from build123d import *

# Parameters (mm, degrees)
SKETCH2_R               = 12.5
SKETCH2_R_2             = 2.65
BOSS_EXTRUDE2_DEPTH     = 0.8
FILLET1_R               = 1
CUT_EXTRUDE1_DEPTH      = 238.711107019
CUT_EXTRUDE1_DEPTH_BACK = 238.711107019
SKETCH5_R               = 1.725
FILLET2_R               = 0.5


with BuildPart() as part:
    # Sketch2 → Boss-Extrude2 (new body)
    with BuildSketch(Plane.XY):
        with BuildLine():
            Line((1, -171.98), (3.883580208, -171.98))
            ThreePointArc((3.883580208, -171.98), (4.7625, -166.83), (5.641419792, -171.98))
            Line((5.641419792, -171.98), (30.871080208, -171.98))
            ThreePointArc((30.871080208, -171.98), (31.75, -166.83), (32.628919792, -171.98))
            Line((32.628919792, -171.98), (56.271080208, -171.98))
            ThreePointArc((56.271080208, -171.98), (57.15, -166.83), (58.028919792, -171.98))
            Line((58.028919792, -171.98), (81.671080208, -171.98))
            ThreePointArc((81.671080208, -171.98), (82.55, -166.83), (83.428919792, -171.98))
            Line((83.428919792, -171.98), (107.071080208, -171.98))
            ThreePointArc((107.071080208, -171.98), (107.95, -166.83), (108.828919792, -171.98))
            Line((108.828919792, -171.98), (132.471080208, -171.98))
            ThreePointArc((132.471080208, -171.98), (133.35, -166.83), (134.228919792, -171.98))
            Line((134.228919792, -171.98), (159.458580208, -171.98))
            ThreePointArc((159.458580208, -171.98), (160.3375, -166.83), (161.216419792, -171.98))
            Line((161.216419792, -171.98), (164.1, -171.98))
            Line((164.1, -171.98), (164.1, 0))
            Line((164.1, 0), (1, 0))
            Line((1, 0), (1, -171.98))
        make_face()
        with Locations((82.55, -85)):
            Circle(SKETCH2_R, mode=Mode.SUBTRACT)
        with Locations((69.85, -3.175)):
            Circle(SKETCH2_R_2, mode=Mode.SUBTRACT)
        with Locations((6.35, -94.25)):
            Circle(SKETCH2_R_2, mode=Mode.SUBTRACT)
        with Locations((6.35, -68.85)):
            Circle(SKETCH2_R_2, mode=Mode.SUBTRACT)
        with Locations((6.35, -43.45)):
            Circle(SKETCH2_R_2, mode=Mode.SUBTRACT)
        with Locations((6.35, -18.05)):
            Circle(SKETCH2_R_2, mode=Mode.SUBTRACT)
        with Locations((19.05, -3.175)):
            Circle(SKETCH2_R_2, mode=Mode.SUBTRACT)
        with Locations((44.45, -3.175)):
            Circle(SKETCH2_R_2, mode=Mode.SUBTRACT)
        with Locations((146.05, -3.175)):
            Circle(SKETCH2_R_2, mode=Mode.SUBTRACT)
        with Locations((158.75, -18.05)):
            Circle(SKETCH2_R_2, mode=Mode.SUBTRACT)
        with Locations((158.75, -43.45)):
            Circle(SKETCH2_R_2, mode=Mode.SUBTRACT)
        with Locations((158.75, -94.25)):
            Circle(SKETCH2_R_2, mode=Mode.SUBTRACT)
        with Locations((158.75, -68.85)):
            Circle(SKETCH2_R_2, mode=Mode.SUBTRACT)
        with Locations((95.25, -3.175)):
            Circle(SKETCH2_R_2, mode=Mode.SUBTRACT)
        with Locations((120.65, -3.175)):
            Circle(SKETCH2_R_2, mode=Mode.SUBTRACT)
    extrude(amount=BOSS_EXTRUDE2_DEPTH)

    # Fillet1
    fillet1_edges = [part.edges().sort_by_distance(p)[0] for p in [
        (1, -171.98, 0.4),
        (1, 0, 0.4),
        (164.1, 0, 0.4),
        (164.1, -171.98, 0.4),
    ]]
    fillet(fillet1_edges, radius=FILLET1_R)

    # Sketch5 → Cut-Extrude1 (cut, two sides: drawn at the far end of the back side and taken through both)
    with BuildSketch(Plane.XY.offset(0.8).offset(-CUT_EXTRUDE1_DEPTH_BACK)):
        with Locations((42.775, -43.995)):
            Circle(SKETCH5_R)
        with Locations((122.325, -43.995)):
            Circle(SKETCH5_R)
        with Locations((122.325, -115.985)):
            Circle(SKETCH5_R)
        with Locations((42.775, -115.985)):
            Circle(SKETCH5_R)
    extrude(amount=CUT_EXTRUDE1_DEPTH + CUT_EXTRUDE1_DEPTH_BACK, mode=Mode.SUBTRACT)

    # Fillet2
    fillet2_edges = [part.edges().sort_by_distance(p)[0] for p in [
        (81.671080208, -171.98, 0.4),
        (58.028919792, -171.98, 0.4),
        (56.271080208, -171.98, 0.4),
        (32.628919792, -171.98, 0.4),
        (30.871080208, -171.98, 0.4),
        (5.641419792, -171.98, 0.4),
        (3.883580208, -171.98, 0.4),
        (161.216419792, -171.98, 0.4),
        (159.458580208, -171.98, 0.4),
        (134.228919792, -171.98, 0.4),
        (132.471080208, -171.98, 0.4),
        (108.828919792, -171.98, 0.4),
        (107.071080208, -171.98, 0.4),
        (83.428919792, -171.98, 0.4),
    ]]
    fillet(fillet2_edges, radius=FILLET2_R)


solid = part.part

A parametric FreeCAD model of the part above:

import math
import FreeCAD as App
import Part
import Sketcher
from FreeCAD import Vector


def edges_at(feature, points):
    """Names of the edges that pass closest to the given points."""
    edges = feature.Shape.Edges
    near = lambda p: min(range(len(edges)), key=lambda i: edges[i].distToShape(Part.Vertex(*p))[0])
    return sorted({f"Edge{near(p) + 1}" for p in points})

doc = App.newDocument("Part")
params = doc.addObject("Spreadsheet::Sheet", "Params")
for row, (alias, value) in enumerate([
    ("sketch1_diameter", "25 mm"),
    ("sketch1_diameter2", "5.3 mm"),
    ("sketch1_width", "163.1 mm"),
    ("sketch1_height", "171.98 mm"),
    ("pad1_length", "0.8 mm"),
    ("fillet_radius", "1 mm"),
    ("sketch2_diameter", "3.45 mm"),
    ("fillet2_radius", "0.5 mm"),
], start=1):
    params.set(f"A{row}", alias)
    params.set(f"B{row}", "=" + value)
    params.setAlias(f"B{row}", alias)

body = doc.addObject("PartDesign::Body", "Body")

# Sketch on XY plane
sketch1 = body.newObject("Sketcher::SketchObject", "Sketch")
sketch1.AttachmentSupport = (doc.getObject("XY_Plane"), [""])
sketch1.MapMode = "FlatFace"
sketch1.addGeometry(Part.LineSegment(Vector(1, -172, 0), Vector(3.9, -172, 0)), False)
sketch1.addGeometry(Part.ArcOfCircle(Part.Circle(Vector(4.8, -169.5, 0), Vector(0, 0, 1), 2.6), math.radians(-71), math.radians(251)), False)
sketch1.addGeometry(Part.LineSegment(Vector(5.6, -172, 0), Vector(30.9, -172, 0)), False)
sketch1.addGeometry(Part.ArcOfCircle(Part.Circle(Vector(31.8, -169.5, 0), Vector(0, 0, 1), 2.6), math.radians(-71), math.radians(251)), False)
sketch1.addGeometry(Part.LineSegment(Vector(32.6, -172, 0), Vector(56.3, -172, 0)), False)
sketch1.addGeometry(Part.ArcOfCircle(Part.Circle(Vector(57.1, -169.5, 0), Vector(0, 0, 1), 2.6), math.radians(-71), math.radians(251)), False)
sketch1.addGeometry(Part.LineSegment(Vector(58, -172, 0), Vector(81.7, -172, 0)), False)
sketch1.addGeometry(Part.ArcOfCircle(Part.Circle(Vector(82.5, -169.5, 0), Vector(0, 0, 1), 2.6), math.radians(-71), math.radians(251)), False)
sketch1.addGeometry(Part.LineSegment(Vector(83.4, -172, 0), Vector(107.1, -172, 0)), False)
sketch1.addGeometry(Part.ArcOfCircle(Part.Circle(Vector(108, -169.5, 0), Vector(0, 0, 1), 2.6), math.radians(-71), math.radians(251)), False)
sketch1.addGeometry(Part.LineSegment(Vector(108.8, -172, 0), Vector(132.5, -172, 0)), False)
sketch1.addGeometry(Part.ArcOfCircle(Part.Circle(Vector(133.3, -169.5, 0), Vector(0, 0, 1), 2.6), math.radians(-71), math.radians(251)), False)
sketch1.addGeometry(Part.LineSegment(Vector(134.2, -172, 0), Vector(159.5, -172, 0)), False)
sketch1.addGeometry(Part.ArcOfCircle(Part.Circle(Vector(160.3, -169.5, 0), Vector(0, 0, 1), 2.6), math.radians(-71), math.radians(251)), False)
sketch1.addGeometry(Part.LineSegment(Vector(161.2, -172, 0), Vector(164.1, -172, 0)), False)
sketch1.addGeometry(Part.LineSegment(Vector(164.1, -172, 0), Vector(164.1, 0, 0)), False)
sketch1.addGeometry(Part.LineSegment(Vector(164.1, 0, 0), Vector(1, 0, 0)), False)
sketch1.addGeometry(Part.LineSegment(Vector(1, 0, 0), Vector(1, -172, 0)), False)
sketch1.addGeometry(Part.Circle(Vector(6.3, -94.2, 0), Vector(0, 0, 1), 2.6), False)
sketch1.addGeometry(Part.Circle(Vector(6.3, -68.8, 0), Vector(0, 0, 1), 2.6), False)
sketch1.addGeometry(Part.Circle(Vector(82.5, -85, 0), Vector(0, 0, 1), 12.5), False)
sketch1.addGeometry(Part.Circle(Vector(158.8, -94.2, 0), Vector(0, 0, 1), 2.6), False)
sketch1.addGeometry(Part.Circle(Vector(158.8, -68.8, 0), Vector(0, 0, 1), 2.6), False)
sketch1.addGeometry(Part.Circle(Vector(6.3, -43.5, 0), Vector(0, 0, 1), 2.6), False)
sketch1.addGeometry(Part.Circle(Vector(6.3, -18.1, 0), Vector(0, 0, 1), 2.6), False)
sketch1.addGeometry(Part.Circle(Vector(19.1, -3.2, 0), Vector(0, 0, 1), 2.6), False)
sketch1.addGeometry(Part.Circle(Vector(44.5, -3.2, 0), Vector(0, 0, 1), 2.6), False)
sketch1.addGeometry(Part.Circle(Vector(69.8, -3.2, 0), Vector(0, 0, 1), 2.6), False)
sketch1.addGeometry(Part.Circle(Vector(158.8, -43.5, 0), Vector(0, 0, 1), 2.6), False)
sketch1.addGeometry(Part.Circle(Vector(95.2, -3.2, 0), Vector(0, 0, 1), 2.6), False)
sketch1.addGeometry(Part.Circle(Vector(120.7, -3.2, 0), Vector(0, 0, 1), 2.6), False)
sketch1.addGeometry(Part.Circle(Vector(158.8, -18.1, 0), Vector(0, 0, 1), 2.6), False)
sketch1.addGeometry(Part.Circle(Vector(146.1, -3.2, 0), Vector(0, 0, 1), 2.6), False)
sketch1.addConstraint(Sketcher.Constraint("Coincident", 0, 2, 1, 2))
sketch1.addConstraint(Sketcher.Constraint("Coincident", 1, 1, 2, 1))
sketch1.addConstraint(Sketcher.Constraint("Coincident", 2, 2, 3, 2))
sketch1.addConstraint(Sketcher.Constraint("Coincident", 3, 1, 4, 1))
sketch1.addConstraint(Sketcher.Constraint("Coincident", 4, 2, 5, 2))
sketch1.addConstraint(Sketcher.Constraint("Coincident", 5, 1, 6, 1))
sketch1.addConstraint(Sketcher.Constraint("Coincident", 6, 2, 7, 2))
sketch1.addConstraint(Sketcher.Constraint("Coincident", 7, 1, 8, 1))
sketch1.addConstraint(Sketcher.Constraint("Coincident", 8, 2, 9, 2))
sketch1.addConstraint(Sketcher.Constraint("Coincident", 9, 1, 10, 1))
sketch1.addConstraint(Sketcher.Constraint("Coincident", 10, 2, 11, 2))
sketch1.addConstraint(Sketcher.Constraint("Coincident", 11, 1, 12, 1))
sketch1.addConstraint(Sketcher.Constraint("Coincident", 12, 2, 13, 2))
sketch1.addConstraint(Sketcher.Constraint("Coincident", 13, 1, 14, 1))
sketch1.addConstraint(Sketcher.Constraint("Coincident", 14, 2, 15, 1))
sketch1.addConstraint(Sketcher.Constraint("Coincident", 15, 2, 16, 1))
sketch1.addConstraint(Sketcher.Constraint("Coincident", 16, 2, 17, 1))
sketch1.addConstraint(Sketcher.Constraint("Coincident", 17, 2, 0, 1))
sketch1.addConstraint(Sketcher.Constraint("Horizontal", 0))
sketch1.addConstraint(Sketcher.Constraint("Horizontal", 2))
sketch1.addConstraint(Sketcher.Constraint("Horizontal", 4))
sketch1.addConstraint(Sketcher.Constraint("Horizontal", 6))
sketch1.addConstraint(Sketcher.Constraint("Horizontal", 8))
sketch1.addConstraint(Sketcher.Constraint("Horizontal", 10))
sketch1.addConstraint(Sketcher.Constraint("Horizontal", 12))
sketch1.addConstraint(Sketcher.Constraint("Horizontal", 14))
sketch1.addConstraint(Sketcher.Constraint("Vertical", 15))
sketch1.addConstraint(Sketcher.Constraint("Horizontal", 16))
sketch1.addConstraint(Sketcher.Constraint("Vertical", 17))
sketch1.addConstraint(Sketcher.Constraint("Equal", 1, 3))
sketch1.addConstraint(Sketcher.Constraint("Equal", 3, 5))
sketch1.addConstraint(Sketcher.Constraint("Equal", 5, 7))
sketch1.addConstraint(Sketcher.Constraint("Equal", 7, 9))
sketch1.addConstraint(Sketcher.Constraint("Equal", 9, 11))
sketch1.addConstraint(Sketcher.Constraint("Equal", 11, 13))
sketch1.addConstraint(Sketcher.Constraint("Equal", 13, 18))
sketch1.addConstraint(Sketcher.Constraint("Equal", 18, 19))
sketch1.addConstraint(Sketcher.Constraint("Equal", 19, 21))
sketch1.addConstraint(Sketcher.Constraint("Equal", 21, 22))
sketch1.addConstraint(Sketcher.Constraint("Equal", 22, 23))
sketch1.addConstraint(Sketcher.Constraint("Equal", 23, 24))
sketch1.addConstraint(Sketcher.Constraint("Equal", 24, 25))
sketch1.addConstraint(Sketcher.Constraint("Equal", 25, 26))
sketch1.addConstraint(Sketcher.Constraint("Equal", 26, 27))
sketch1.addConstraint(Sketcher.Constraint("Equal", 27, 28))
sketch1.addConstraint(Sketcher.Constraint("Equal", 28, 29))
sketch1.addConstraint(Sketcher.Constraint("Equal", 29, 30))
sketch1.addConstraint(Sketcher.Constraint("Equal", 30, 31))
sketch1.addConstraint(Sketcher.Constraint("Equal", 31, 32))
sketch1.addConstraint(Sketcher.Constraint("PointOnObject", 15, 2, -1))
sketch1.addConstraint(Sketcher.Constraint("Horizontal", 1, 3, 3, 3))
sketch1.addConstraint(Sketcher.Constraint("Horizontal", 3, 3, 5, 3))
sketch1.addConstraint(Sketcher.Constraint("Horizontal", 5, 3, 7, 3))
sketch1.addConstraint(Sketcher.Constraint("Horizontal", 7, 3, 9, 3))
sketch1.addConstraint(Sketcher.Constraint("Horizontal", 9, 3, 11, 3))
sketch1.addConstraint(Sketcher.Constraint("Horizontal", 11, 3, 13, 3))
sketch1.addConstraint(Sketcher.Constraint("Horizontal", 18, 3, 21, 3))
sketch1.addConstraint(Sketcher.Constraint("Horizontal", 19, 3, 22, 3))
sketch1.addConstraint(Sketcher.Constraint("Horizontal", 25, 3, 26, 3))
sketch1.addConstraint(Sketcher.Constraint("Horizontal", 26, 3, 27, 3))
sketch1.addConstraint(Sketcher.Constraint("Horizontal", 23, 3, 28, 3))
sketch1.addConstraint(Sketcher.Constraint("Horizontal", 27, 3, 29, 3))
sketch1.addConstraint(Sketcher.Constraint("Horizontal", 29, 3, 30, 3))
sketch1.addConstraint(Sketcher.Constraint("Horizontal", 24, 3, 31, 3))
sketch1.addConstraint(Sketcher.Constraint("Horizontal", 30, 3, 32, 3))
sketch1.addConstraint(Sketcher.Constraint("Horizontal", 0, 2, 1, 1))
sketch1.addConstraint(Sketcher.Constraint("Horizontal", 2, 2, 3, 1))
sketch1.addConstraint(Sketcher.Constraint("Horizontal", 4, 2, 5, 1))
sketch1.addConstraint(Sketcher.Constraint("Horizontal", 6, 2, 7, 1))
sketch1.addConstraint(Sketcher.Constraint("Horizontal", 8, 2, 9, 1))
sketch1.addConstraint(Sketcher.Constraint("Horizontal", 10, 2, 11, 1))
sketch1.addConstraint(Sketcher.Constraint("Horizontal", 12, 2, 13, 1))
sketch1.addConstraint(Sketcher.Constraint("Vertical", 18, 3, 19, 3))
sketch1.addConstraint(Sketcher.Constraint("Vertical", 7, 3, 20, 3))
sketch1.addConstraint(Sketcher.Constraint("Vertical", 21, 3, 22, 3))
sketch1.addConstraint(Sketcher.Constraint("Vertical", 19, 3, 23, 3))
sketch1.addConstraint(Sketcher.Constraint("Vertical", 23, 3, 24, 3))
sketch1.addConstraint(Sketcher.Constraint("Vertical", 22, 3, 28, 3))
sketch1.addConstraint(Sketcher.Constraint("Vertical", 28, 3, 31, 3))
sketch1.addConstraint(Sketcher.Constraint("Equal", 4, 6))
sketch1.addConstraint(Sketcher.Constraint("Equal", 6, 8))
sketch1.addConstraint(Sketcher.Constraint("Equal", 8, 10))
sketch1.addConstraint(Sketcher.Constraint("Equal", 2, 12))
sketch1.addConstraint(Sketcher.Constraint("Equal", 0, 14))
sketch1.addConstraint(Sketcher.Constraint("Diameter", 20, 25.0))
sketch1.addConstraint(Sketcher.Constraint("Diameter", 18, 5.3))
sketch1.addConstraint(Sketcher.Constraint("DistanceX", 16, 2, 16, 1, 163.1))
sketch1.addConstraint(Sketcher.Constraint("DistanceY", 20, 3, -1, 1, 85.0))
sketch1.addConstraint(Sketcher.Constraint("DistanceX", -1, 1, 16, 2, 1.0))
sketch1.addConstraint(Sketcher.Constraint("DistanceY", 15, 1, 15, 2, 171.98))
sketch1.addConstraint(Sketcher.Constraint("DistanceX", 3, 3, 5, 3, 25.4))
sketch1.addConstraint(Sketcher.Constraint("DistanceX", 18, 3, 3, 3, 25.4))
sketch1.addConstraint(Sketcher.Constraint("DistanceY", 18, 3, 19, 3, 25.4))
sketch1.addConstraint(Sketcher.Constraint("DistanceX", 20, 3, 21, 3, 76.2))
sketch1.addConstraint(Sketcher.Constraint("DistanceY", 19, 3, 23, 3, 25.4))
sketch1.addConstraint(Sketcher.Constraint("DistanceY", 23, 3, 24, 3, 25.4))
sketch1.addConstraint(Sketcher.Constraint("DistanceX", 24, 3, 25, 3, 12.7))
sketch1.addConstraint(Sketcher.Constraint("DistanceX", 25, 3, 26, 3, 25.4))
sketch1.addConstraint(Sketcher.Constraint("DistanceX", 26, 3, 27, 3, 25.4))
sketch1.addConstraint(Sketcher.Constraint("DistanceX", 27, 3, 29, 3, 25.4))
sketch1.addConstraint(Sketcher.Constraint("DistanceX", 29, 3, 30, 3, 25.4))
sketch1.addConstraint(Sketcher.Constraint("DistanceX", 32, 3, 31, 3, 12.7))
sketch1.addConstraint(Sketcher.Constraint("DistanceY", 0, 2, 1, 3, 2.5))
sketch1.addConstraint(Sketcher.Constraint("DistanceY", 18, 3, -1, 1, 94.25))
sketch1.addConstraint(Sketcher.Constraint("DistanceY", 25, 3, -1, 1, 3.175))
sketch1.addConstraint(Sketcher.Constraint("DistanceX", 0, 1, 0, 2, 2.88358))
sketch1.setExpression("Constraints[84]", "Params.sketch1_diameter")
sketch1.setExpression("Constraints[85]", "Params.sketch1_diameter2")
sketch1.setExpression("Constraints[86]", "Params.sketch1_width")
sketch1.setExpression("Constraints[89]", "Params.sketch1_height")
pad1 = body.newObject("PartDesign::Pad", "Pad")
pad1.Profile = sketch1
pad1.setExpression("Length", "Params.pad1_length")
doc.recompute()

fillet = body.newObject("PartDesign::Fillet", "Fillet")
fillet.Base = (pad1, edges_at(pad1, [
    (1, -171.98, 0.4),
    (1, 0, 0.4),
    (164.1, 0, 0.4),
    (164.1, -171.98, 0.4),
]))
fillet.setExpression("Radius", "Params.fillet_radius")

# Sketch on XY plane
sketch2 = body.newObject("Sketcher::SketchObject", "Sketch001")
sketch2.AttachmentSupport = (doc.getObject("XY_Plane"), [""])
sketch2.MapMode = "FlatFace"
sketch2.AttachmentOffset = App.Placement(Vector(0, 0, 0.8), App.Rotation())
sketch2.addGeometry(Part.Circle(Vector(42.8, -44, 0), Vector(0, 0, 1), 1.7), False)
sketch2.addGeometry(Part.Circle(Vector(122.3, -44, 0), Vector(0, 0, 1), 1.7), False)
sketch2.addGeometry(Part.Circle(Vector(122.3, -116, 0), Vector(0, 0, 1), 1.7), False)
sketch2.addGeometry(Part.Circle(Vector(42.8, -116, 0), Vector(0, 0, 1), 1.7), False)
sketch2.addConstraint(Sketcher.Constraint("Equal", 0, 1))
sketch2.addConstraint(Sketcher.Constraint("Equal", 1, 2))
sketch2.addConstraint(Sketcher.Constraint("Equal", 2, 3))
sketch2.addConstraint(Sketcher.Constraint("Horizontal", 0, 3, 1, 3))
sketch2.addConstraint(Sketcher.Constraint("Horizontal", 2, 3, 3, 3))
sketch2.addConstraint(Sketcher.Constraint("Vertical", 1, 3, 2, 3))
sketch2.addConstraint(Sketcher.Constraint("Vertical", 0, 3, 3, 3))
sketch2.addConstraint(Sketcher.Constraint("Diameter", 0, 3.45))
sketch2.addConstraint(Sketcher.Constraint("DistanceX", 0, 3, 1, 3, 79.55))
sketch2.addConstraint(Sketcher.Constraint("DistanceY", 2, 3, 1, 3, 71.99))
sketch2.addConstraint(Sketcher.Constraint("DistanceX", -1, 1, 0, 3, 42.775))
sketch2.addConstraint(Sketcher.Constraint("DistanceY", 0, 3, -1, 1, 43.995))
sketch2.setExpression("Constraints[7]", "Params.sketch2_diameter")
pocket1 = body.newObject("PartDesign::Pocket", "Pocket")
pocket1.Profile = sketch2
pocket1.Type = "ThroughAll"
pocket1.Midplane = True
doc.recompute()

fillet2 = body.newObject("PartDesign::Fillet", "Fillet001")
fillet2.Base = (pocket1, edges_at(pocket1, [
    (81.671, -171.98, 0.4),
    (58.029, -171.98, 0.4),
    (56.271, -171.98, 0.4),
    (32.629, -171.98, 0.4),
    (30.871, -171.98, 0.4),
    (5.641, -171.98, 0.4),
    (3.884, -171.98, 0.4),
    (161.216, -171.98, 0.4),
    (159.459, -171.98, 0.4),
    (134.229, -171.98, 0.4),
    (132.471, -171.98, 0.4),
    (108.829, -171.98, 0.4),
    (107.071, -171.98, 0.4),
    (83.429, -171.98, 0.4),
]))
fillet2.setExpression("Radius", "Params.fillet2_radius")

doc.recompute()
